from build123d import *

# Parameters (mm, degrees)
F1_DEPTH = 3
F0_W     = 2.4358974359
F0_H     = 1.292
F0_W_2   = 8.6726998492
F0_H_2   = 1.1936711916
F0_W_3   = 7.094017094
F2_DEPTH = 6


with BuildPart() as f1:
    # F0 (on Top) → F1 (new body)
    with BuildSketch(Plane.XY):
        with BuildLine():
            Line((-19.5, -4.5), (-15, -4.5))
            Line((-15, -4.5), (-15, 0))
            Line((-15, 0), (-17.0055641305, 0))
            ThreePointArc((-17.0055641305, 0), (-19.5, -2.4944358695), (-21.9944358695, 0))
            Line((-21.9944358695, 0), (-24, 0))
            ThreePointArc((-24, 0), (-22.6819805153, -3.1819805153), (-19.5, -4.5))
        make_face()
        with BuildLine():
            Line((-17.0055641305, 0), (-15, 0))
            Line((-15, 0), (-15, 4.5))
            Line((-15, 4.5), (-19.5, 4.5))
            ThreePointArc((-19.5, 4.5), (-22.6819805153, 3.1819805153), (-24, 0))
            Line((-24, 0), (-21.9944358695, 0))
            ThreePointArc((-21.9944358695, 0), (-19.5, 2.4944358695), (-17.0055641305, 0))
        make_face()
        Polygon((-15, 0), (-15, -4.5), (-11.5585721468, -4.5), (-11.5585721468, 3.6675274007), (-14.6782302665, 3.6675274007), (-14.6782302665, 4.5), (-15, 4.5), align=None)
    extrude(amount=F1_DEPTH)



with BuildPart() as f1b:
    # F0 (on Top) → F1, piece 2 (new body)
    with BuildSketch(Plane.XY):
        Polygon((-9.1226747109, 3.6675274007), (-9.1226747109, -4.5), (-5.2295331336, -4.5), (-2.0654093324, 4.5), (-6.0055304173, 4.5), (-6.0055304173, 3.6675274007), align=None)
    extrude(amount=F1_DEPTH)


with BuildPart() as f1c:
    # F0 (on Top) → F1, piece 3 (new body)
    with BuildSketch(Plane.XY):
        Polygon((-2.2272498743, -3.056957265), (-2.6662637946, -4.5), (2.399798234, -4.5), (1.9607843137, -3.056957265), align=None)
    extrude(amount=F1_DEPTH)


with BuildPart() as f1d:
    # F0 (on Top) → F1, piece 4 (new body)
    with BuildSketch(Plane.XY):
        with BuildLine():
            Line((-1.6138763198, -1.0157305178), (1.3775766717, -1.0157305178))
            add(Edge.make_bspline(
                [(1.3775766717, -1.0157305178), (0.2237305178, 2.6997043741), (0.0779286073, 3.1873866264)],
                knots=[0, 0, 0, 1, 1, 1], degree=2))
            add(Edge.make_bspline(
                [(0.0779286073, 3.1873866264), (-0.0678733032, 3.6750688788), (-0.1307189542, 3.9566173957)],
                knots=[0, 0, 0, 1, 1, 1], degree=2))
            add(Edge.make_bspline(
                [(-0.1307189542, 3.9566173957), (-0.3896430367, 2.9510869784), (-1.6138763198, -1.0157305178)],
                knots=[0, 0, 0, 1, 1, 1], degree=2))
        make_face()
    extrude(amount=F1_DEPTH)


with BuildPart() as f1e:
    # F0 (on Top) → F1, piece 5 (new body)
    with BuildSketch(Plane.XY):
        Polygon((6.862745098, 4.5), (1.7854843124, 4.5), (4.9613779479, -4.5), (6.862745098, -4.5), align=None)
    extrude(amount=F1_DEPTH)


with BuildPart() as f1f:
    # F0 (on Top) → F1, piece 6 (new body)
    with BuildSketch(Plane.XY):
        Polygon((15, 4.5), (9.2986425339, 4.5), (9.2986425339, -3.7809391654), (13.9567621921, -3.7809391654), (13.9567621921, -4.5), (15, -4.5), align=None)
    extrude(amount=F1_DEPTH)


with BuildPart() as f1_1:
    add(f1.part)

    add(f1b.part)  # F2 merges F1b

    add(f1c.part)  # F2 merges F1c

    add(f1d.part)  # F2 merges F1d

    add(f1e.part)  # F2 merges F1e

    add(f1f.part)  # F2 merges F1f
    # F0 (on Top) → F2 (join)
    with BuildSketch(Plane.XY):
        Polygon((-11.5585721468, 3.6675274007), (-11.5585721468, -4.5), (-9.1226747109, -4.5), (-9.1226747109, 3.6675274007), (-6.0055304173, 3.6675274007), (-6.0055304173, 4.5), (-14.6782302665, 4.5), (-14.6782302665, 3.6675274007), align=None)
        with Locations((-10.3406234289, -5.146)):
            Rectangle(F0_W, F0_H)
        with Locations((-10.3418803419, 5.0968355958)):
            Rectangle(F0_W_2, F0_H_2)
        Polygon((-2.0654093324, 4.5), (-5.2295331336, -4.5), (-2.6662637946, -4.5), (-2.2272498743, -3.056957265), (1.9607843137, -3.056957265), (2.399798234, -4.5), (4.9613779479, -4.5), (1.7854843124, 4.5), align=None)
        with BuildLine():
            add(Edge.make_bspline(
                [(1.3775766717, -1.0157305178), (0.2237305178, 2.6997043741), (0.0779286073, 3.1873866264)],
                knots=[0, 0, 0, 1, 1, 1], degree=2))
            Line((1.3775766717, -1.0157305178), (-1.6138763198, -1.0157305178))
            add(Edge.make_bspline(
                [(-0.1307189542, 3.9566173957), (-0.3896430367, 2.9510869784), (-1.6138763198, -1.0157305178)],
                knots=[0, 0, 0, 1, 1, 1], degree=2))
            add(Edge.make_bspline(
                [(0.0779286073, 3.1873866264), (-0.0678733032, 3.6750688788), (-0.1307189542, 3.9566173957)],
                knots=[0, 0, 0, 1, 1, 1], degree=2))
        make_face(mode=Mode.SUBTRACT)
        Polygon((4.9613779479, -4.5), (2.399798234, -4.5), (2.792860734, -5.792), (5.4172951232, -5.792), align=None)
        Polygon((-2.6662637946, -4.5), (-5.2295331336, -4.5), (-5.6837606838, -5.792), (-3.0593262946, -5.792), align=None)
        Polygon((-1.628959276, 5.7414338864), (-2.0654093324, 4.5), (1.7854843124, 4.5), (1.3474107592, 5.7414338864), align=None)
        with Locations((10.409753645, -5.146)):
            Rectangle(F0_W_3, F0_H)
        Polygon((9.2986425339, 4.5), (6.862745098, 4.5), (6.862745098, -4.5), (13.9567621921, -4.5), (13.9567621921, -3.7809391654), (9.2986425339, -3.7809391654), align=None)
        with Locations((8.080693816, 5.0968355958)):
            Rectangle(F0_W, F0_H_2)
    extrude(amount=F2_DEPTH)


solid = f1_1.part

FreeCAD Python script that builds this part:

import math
import FreeCAD as App
import Part
import Sketcher

V = App.Vector

doc = App.newDocument("Part")
body = doc.addObject("PartDesign::Body", "Body")

# Sketch on XY plane
sketch1 = body.newObject("Sketcher::SketchObject", "Sketch")
sketch1.AttachmentSupport = (doc.getObject("XY_Plane"), [""])
sketch1.MapMode = "FlatFace"
sketch1.addGeometry([
    Part.LineSegment(V(-19.5, -4.5, 0), V(-11.6, -4.5, 0)),  # 0
    Part.LineSegment(V(-11.6, -4.5, 0), V(-11.6, 3.7, 0)),  # 1
    Part.LineSegment(V(-11.6, 3.7, 0), V(-14.7, 3.7, 0)),  # 2
    Part.LineSegment(V(-14.7, 3.7, 0), V(-14.7, 4.5, 0)),  # 3
    Part.LineSegment(V(-14.7, 4.5, 0), V(-19.5, 4.5, 0)),  # 4
    Part.ArcOfCircle(Part.Circle(V(-19.5, 0, 0), V(0, 0, 1), 4.5), math.radians(90), math.radians(180)),  # 5
    Part.ArcOfCircle(Part.Circle(V(-19.5, 0, 0), V(0, 0, 1), 4.5), math.radians(180), math.radians(270)),  # 6
    Part.Circle(V(-19.5, 0, 0), V(0, 0, 1), 2.5),  # 7
], False)
sketch1.addConstraint([
    Sketcher.Constraint("Coincident", 0, 2, 1, 1),
    Sketcher.Constraint("Coincident", 1, 2, 2, 1),
    Sketcher.Constraint("Coincident", 2, 2, 3, 1),
    Sketcher.Constraint("Coincident", 3, 2, 4, 1),
    Sketcher.Constraint("Tangent", 4, 2, 5, 1),
    Sketcher.Constraint("Tangent", 5, 2, 6, 1),
    Sketcher.Constraint("Tangent", 6, 2, 0, 1),
    Sketcher.Constraint("Horizontal", 0),
    Sketcher.Constraint("Vertical", 1),
    Sketcher.Constraint("Horizontal", 2),
    Sketcher.Constraint("Vertical", 3),
    Sketcher.Constraint("Horizontal", 4),
    Sketcher.Constraint("Coincident", 7, 3, 5, 3),
    Sketcher.Constraint("Equal", 5, 6),
    Sketcher.Constraint("PointOnObject", 5, 3, -1),
    Sketcher.Constraint("PointOnObject", 5, 2, -1),
    Sketcher.Constraint("Radius", 5, 4.5),
    Sketcher.Constraint("DistanceX", 5, 2, -1, 1, 24.0),
    Sketcher.Constraint("Diameter", 7, 4.988872),
    Sketcher.Constraint("DistanceX", 2, 2, 2, 1, 3.119658),
    Sketcher.Constraint("DistanceX", 4, 2, 4, 1, 4.82177),
    Sketcher.Constraint("DistanceY", 1, 1, 1, 2, 8.167527),
])
pad1 = body.newObject("PartDesign::Pad", "Pad")
pad1.Profile = sketch1
pad1.Length = 3
body2 = doc.addObject("PartDesign::Body", "Body001")

# Sketch on XY plane
sketch2 = body2.newObject("Sketcher::SketchObject", "Sketch001")
sketch2.AttachmentSupport = (doc.getObject("XY_Plane001"), [""])
sketch2.MapMode = "FlatFace"
sketch2.addGeometry([
    Part.LineSegment(V(-9.1, 3.7, 0), V(-9.1, -4.5, 0)),  # 0
    Part.LineSegment(V(-9.1, -4.5, 0), V(-5.2, -4.5, 0)),  # 1
    Part.LineSegment(V(-5.2, -4.5, 0), V(-2.1, 4.5, 0)),  # 2
    Part.LineSegment(V(-2.1, 4.5, 0), V(-6, 4.5, 0)),  # 3
    Part.LineSegment(V(-6, 4.5, 0), V(-6, 3.7, 0)),  # 4
    Part.LineSegment(V(-6, 3.7, 0), V(-9.1, 3.7, 0)),  # 5
], False)
sketch2.addConstraint([
    Sketcher.Constraint("Coincident", 0, 2, 1, 1),
    Sketcher.Constraint("Coincident", 1, 2, 2, 1),
    Sketcher.Constraint("Coincident", 2, 2, 3, 1),
    Sketcher.Constraint("Coincident", 3, 2, 4, 1),
    Sketcher.Constraint("Coincident", 4, 2, 5, 1),
    Sketcher.Constraint("Coincident", 5, 2, 0, 1),
    Sketcher.Constraint("Vertical", 0),
    Sketcher.Constraint("Horizontal", 1),
    Sketcher.Constraint("Horizontal", 3),
    Sketcher.Constraint("Vertical", 4),
    Sketcher.Constraint("Horizontal", 5),
    Sketcher.Constraint("DistanceY", 1, 2, 2, 2, 9.0),
    Sketcher.Constraint("DistanceY", 0, 2, -1, 1, 4.5),
    Sketcher.Constraint("DistanceX", 1, 1, 1, 2, 3.893142),
    Sketcher.Constraint("DistanceX", 3, 2, 3, 1, 3.940121),
    Sketcher.Constraint("DistanceX", 5, 2, 5, 1, 3.117144),
    Sketcher.Constraint("DistanceY", 0, 2, 0, 1, 8.167527),
    Sketcher.Constraint("DistanceX", 2, 2, -1, 1, 2.065409),
])
pad2 = body2.newObject("PartDesign::Pad", "Pad001")
pad2.Profile = sketch2
pad2.Length = 3
body3 = doc.addObject("PartDesign::Body", "Body002")

# Sketch on XY plane
sketch3 = body3.newObject("Sketcher::SketchObject", "Sketch002")
sketch3.AttachmentSupport = (doc.getObject("XY_Plane002"), [""])
sketch3.MapMode = "FlatFace"
sketch3.addGeometry([
    Part.LineSegment(V(-2.2, -3.1, 0), V(-2.7, -4.5, 0)),
    Part.LineSegment(V(-2.7, -4.5, 0), V(2.4, -4.5, 0)),
    Part.LineSegment(V(2.4, -4.5, 0), V(2, -3.1, 0)),
    Part.LineSegment(V(2, -3.1, 0), V(-2.2, -3.1, 0)),
], False)
sketch3.addConstraint([
    Sketcher.Constraint("Coincident", 0, 2, 1, 1),
    Sketcher.Constraint("Coincident", 1, 2, 2, 1),
    Sketcher.Constraint("Coincident", 2, 2, 3, 1),
    Sketcher.Constraint("Coincident", 3, 2, 0, 1),
    Sketcher.Constraint("Horizontal", 1),
    Sketcher.Constraint("Horizontal", 3),
    Sketcher.Constraint("Equal", 0, 2),
    Sketcher.Constraint("DistanceY", 0, 2, -1, 1, 4.5),
    Sketcher.Constraint("DistanceX", -1, 1, 1, 2, 2.399798),
    Sketcher.Constraint("DistanceX", 1, 1, 1, 2, 5.066062),
    Sketcher.Constraint("DistanceX", 3, 2, 3, 1, 4.188034),
    Sketcher.Constraint("Distance", 0, 1.508345),
])
pad3 = body3.newObject("PartDesign::Pad", "Pad002")
pad3.Profile = sketch3
pad3.Length = 3
body4 = doc.addObject("PartDesign::Body", "Body003")

# Sketch on XY plane
sketch4 = body4.newObject("Sketcher::SketchObject", "Sketch003")
sketch4.AttachmentSupport = (doc.getObject("XY_Plane003"), [""])
sketch4.MapMode = "FlatFace"
sketch4.addGeometry([
    Part.LineSegment(V(-1.613876, -1.015731, 0), V(1.377577, -1.015731, 0)),
    Part.BSplineCurve([V(1.377577, -1.015731, 0), V(0.223731, 2.699704, 0), V(0.077929, 3.187387, 0)], [3, 3], [0, 1], False, 2, [1, 1, 1], False),
    Part.BSplineCurve([V(0.077929, 3.187387, 0), V(-0.067873, 3.675069, 0), V(-0.130719, 3.956617, 0)], [3, 3], [0, 1], False, 2, [1, 1, 1], False),
    Part.BSplineCurve([V(-0.130719, 3.956617, 0), V(-0.389643, 2.951087, 0), V(-1.613876, -1.015731, 0)], [3, 3], [0, 1], False, 2, [1, 1, 1], False),
], False)
sketch4.addConstraint([
    Sketcher.Constraint("Block", 1),
    Sketcher.Constraint("Block", 2),
    Sketcher.Constraint("Block", 3),
    Sketcher.Constraint("Coincident", 0, 2, 1, 1),
    Sketcher.Constraint("Coincident", 3, 2, 0, 1),
])
pad4 = body4.newObject("PartDesign::Pad", "Pad003")
pad4.Profile = sketch4
pad4.Length = 3
body5 = doc.addObject("PartDesign::Body", "Body004")

# Sketch on XY plane
sketch5 = body5.newObject("Sketcher::SketchObject", "Sketch004")
sketch5.AttachmentSupport = (doc.getObject("XY_Plane004"), [""])
sketch5.MapMode = "FlatFace"
sketch5.addGeometry([
    Part.LineSegment(V(6.9, 4.5, 0), V(1.8, 4.5, 0)),
    Part.LineSegment(V(1.8, 4.5, 0), V(5, -4.5, 0)),
    Part.LineSegment(V(5, -4.5, 0), V(6.9, -4.5, 0)),
    Part.LineSegment(V(6.9, -4.5, 0), V(6.9, 4.5, 0)),
], False)
sketch5.addConstraint([
    Sketcher.Constraint("Coincident", 0, 2, 1, 1),
    Sketcher.Constraint("Coincident", 1, 2, 2, 1),
    Sketcher.Constraint("Coincident", 2, 2, 3, 1),
    Sketcher.Constraint("Coincident", 3, 2, 0, 1),
    Sketcher.Constraint("Horizontal", 0),
    Sketcher.Constraint("Horizontal", 2),
    Sketcher.Constraint("Vertical", 3),
    Sketcher.Constraint("DistanceY", 3, 1, 3, 2, 9.0),
    Sketcher.Constraint("DistanceY", -1, 1, 0, 2, 4.5),
    Sketcher.Constraint("DistanceX", 0, 2, 0, 1, 5.077261),
    Sketcher.Constraint("DistanceX", 2, 1, 2, 2, 1.901367),
    Sketcher.Constraint("DistanceX", -1, 1, 0, 2, 1.785484),
])
pad5 = body5.newObject("PartDesign::Pad", "Pad004")
pad5.Profile = sketch5
pad5.Length = 3
body6 = doc.addObject("PartDesign::Body", "Body005")

# Sketch on XY plane
sketch6 = body6.newObject("Sketcher::SketchObject", "Sketch005")
sketch6.AttachmentSupport = (doc.getObject("XY_Plane005"), [""])
sketch6.MapMode = "FlatFace"
sketch6.addGeometry([
    Part.LineSegment(V(15, 4.5, 0), V(9.3, 4.5, 0)),  # 0
    Part.LineSegment(V(9.3, 4.5, 0), V(9.3, -3.8, 0)),  # 1
    Part.LineSegment(V(9.3, -3.8, 0), V(14, -3.8, 0)),  # 2
    Part.LineSegment(V(14, -3.8, 0), V(14, -4.5, 0)),  # 3
    Part.LineSegment(V(14, -4.5, 0), V(15, -4.5, 0)),  # 4
    Part.LineSegment(V(15, -4.5, 0), V(15, 4.5, 0)),  # 5
], False)
sketch6.addConstraint([
    Sketcher.Constraint("Coincident", 0, 2, 1, 1),
    Sketcher.Constraint("Coincident", 1, 2, 2, 1),
    Sketcher.Constraint("Coincident", 2, 2, 3, 1),
    Sketcher.Constraint("Coincident", 3, 2, 4, 1),
    Sketcher.Constraint("Coincident", 4, 2, 5, 1),
    Sketcher.Constraint("Coincident", 5, 2, 0, 1),
    Sketcher.Constraint("Horizontal", 0),
    Sketcher.Constraint("Vertical", 1),
    Sketcher.Constraint("Horizontal", 2),
    Sketcher.Constraint("Vertical", 3),
    Sketcher.Constraint("Horizontal", 4),
    Sketcher.Constraint("Vertical", 5),
    Sketcher.Constraint("DistanceY", 5, 1, 5, 2, 9.0),
    Sketcher.Constraint("DistanceX", -1, 1, 4, 2, 15.0),
    Sketcher.Constraint("DistanceY", -1, 1, 0, 2, 4.5),
    Sketcher.Constraint("DistanceX", 2, 1, 2, 2, 4.65812),
    Sketcher.Constraint("DistanceY", 1, 2, 1, 1, 8.280939),
    Sketcher.Constraint("DistanceX", 0, 2, 0, 1, 5.701357),
])
pad6 = body6.newObject("PartDesign::Pad", "Pad005")
pad6.Profile = sketch6
pad6.Length = 3
body.AllowCompound = True
doc.recompute()

boolean = body.newObject("PartDesign::Boolean", "Boolean")
boolean.Type = "Fuse"
boolean.addObjects([body2])
doc.recompute()

boolean2 = body.newObject("PartDesign::Boolean", "Boolean001")
boolean2.Type = "Fuse"
boolean2.addObjects([body3])
doc.recompute()

boolean3 = body.newObject("PartDesign::Boolean", "Boolean002")
boolean3.Type = "Fuse"
boolean3.addObjects([body4])
doc.recompute()

boolean4 = body.newObject("PartDesign::Boolean", "Boolean003")
boolean4.Type = "Fuse"
boolean4.addObjects([body5])
doc.recompute()

boolean5 = body.newObject("PartDesign::Boolean", "Boolean004")
boolean5.Type = "Fuse"
boolean5.addObjects([body6])

# Sketch on XY plane
sketch7 = body.newObject("Sketcher::SketchObject", "Sketch006")
sketch7.AttachmentSupport = (doc.getObject("XY_Plane"), [""])
sketch7.MapMode = "FlatFace"
sketch7.addGeometry([
    Part.LineSegment(V(-11.558572, 3.667527, 0), V(-11.558572, -5.792, 0)),  # 0
    Part.LineSegment(V(-11.558572, -5.792, 0), V(-9.122675, -5.792, 0)),  # 1
    Part.LineSegment(V(-9.122675, -5.792, 0), V(-9.122675, -4.5, 0)),  # 2
    Part.LineSegment(V(-9.122675, -4.5, 0), V(-9.122675, 3.667527, 0)),  # 3
    Part.LineSegment(V(-9.122675, 3.667527, 0), V(-6.00553, 3.667527, 0)),  # 4
    Part.LineSegment(V(-6.00553, 3.667527, 0), V(-6.00553, 5.693671, 0)),  # 5
    Part.LineSegment(V(-6.00553, 5.693671, 0), V(-14.67823, 5.693671, 0)),  # 6
    Part.LineSegment(V(-14.67823, 5.693671, 0), V(-14.67823, 3.667527, 0)),  # 7
    Part.LineSegment(V(-14.67823, 3.667527, 0), V(-11.558572, 3.667527, 0)),  # 8
    Part.LineSegment(V(-2.065409, 4.5, 0), V(-5.229533, -4.5, 0)),  # 9
    Part.LineSegment(V(-5.229533, -4.5, 0), V(-5.683761, -5.792, 0)),  # 10
    Part.LineSegment(V(-5.683761, -5.792, 0), V(-3.059326, -5.792, 0)),  # 11
    Part.LineSegment(V(-3.059326, -5.792, 0), V(-2.22725, -3.056957, 0)),  # 12
    Part.LineSegment(V(-2.22725, -3.056957, 0), V(1.960784, -3.056957, 0)),  # 13
    Part.LineSegment(V(1.960784, -3.056957, 0), V(2.792861, -5.792, 0)),  # 14
    Part.LineSegment(V(2.792861, -5.792, 0), V(5.417295, -5.792, 0)),  # 15
    Part.LineSegment(V(5.417295, -5.792, 0), V(4.961378, -4.5, 0)),  # 16
    Part.LineSegment(V(4.961378, -4.5, 0), V(1.785484, 4.5, 0)),  # 17
    Part.LineSegment(V(1.785484, 4.5, 0), V(1.347411, 5.741434, 0)),  # 18
    Part.LineSegment(V(1.347411, 5.741434, 0), V(-1.628959, 5.741434, 0)),  # 19
    Part.LineSegment(V(-1.628959, 5.741434, 0), V(-2.065409, 4.5, 0)),  # 20
    Part.BSplineCurve([V(1.377577, -1.015731, 0), V(0.223731, 2.699704, 0), V(0.077929, 3.187387, 0)], [3, 3], [0, 1], False, 2, [1, 1, 1], False),  # 21
    Part.LineSegment(V(1.377577, -1.015731, 0), V(-1.613876, -1.015731, 0)),  # 22
    Part.BSplineCurve([V(-0.130719, 3.956617, 0), V(-0.389643, 2.951087, 0), V(-1.613876, -1.015731, 0)], [3, 3], [0, 1], False, 2, [1, 1, 1], False),  # 23
    Part.BSplineCurve([V(0.077929, 3.187387, 0), V(-0.067873, 3.675069, 0), V(-0.130719, 3.956617, 0)], [3, 3], [0, 1], False, 2, [1, 1, 1], False),  # 24
    Part.LineSegment(V(6.862745, -5.792, 0), V(13.956762, -5.792, 0)),  # 25
    Part.LineSegment(V(13.956762, -5.792, 0), V(13.956762, -4.5, 0)),  # 26
    Part.LineSegment(V(13.956762, -4.5, 0), V(13.956762, -3.780939, 0)),  # 27
    Part.LineSegment(V(13.956762, -3.780939, 0), V(9.298643, -3.780939, 0)),  # 28
    Part.LineSegment(V(9.298643, -3.780939, 0), V(9.298643, 4.5, 0)),  # 29
    Part.LineSegment(V(9.298643, 4.5, 0), V(9.298643, 5.693671, 0)),  # 30
    Part.LineSegment(V(9.298643, 5.693671, 0), V(6.862745, 5.693671, 0)),  # 31
    Part.LineSegment(V(6.862745, 5.693671, 0), V(6.862745, 4.5, 0)),  # 32
    Part.LineSegment(V(6.862745, 4.5, 0), V(6.862745, -5.792, 0)),  # 33
], False)
sketch7.addConstraint([
    Sketcher.Constraint("Block", 21),
    Sketcher.Constraint("Block", 23),
    Sketcher.Constraint("Block", 24),
    Sketcher.Constraint("Coincident", 0, 2, 1, 1),
    Sketcher.Constraint("Coincident", 1, 2, 2, 1),
    Sketcher.Constraint("Coincident", 2, 2, 3, 1),
    Sketcher.Constraint("Coincident", 3, 2, 4, 1),
    Sketcher.Constraint("Coincident", 4, 2, 5, 1),
    Sketcher.Constraint("Coincident", 5, 2, 6, 1),
    Sketcher.Constraint("Coincident", 6, 2, 7, 1),
    Sketcher.Constraint("Coincident", 7, 2, 8, 1),
    Sketcher.Constraint("Coincident", 8, 2, 0, 1),
    Sketcher.Constraint("Coincident", 9, 2, 10, 1),
    Sketcher.Constraint("Coincident", 10, 2, 11, 1),
    Sketcher.Constraint("Coincident", 11, 2, 12, 1),
    Sketcher.Constraint("Coincident", 12, 2, 13, 1),
    Sketcher.Constraint("Coincident", 13, 2, 14, 1),
    Sketcher.Constraint("Coincident", 14, 2, 15, 1),
    Sketcher.Constraint("Coincident", 15, 2, 16, 1),
    Sketcher.Constraint("Coincident", 16, 2, 17, 1),
    Sketcher.Constraint("Coincident", 17, 2, 18, 1),
    Sketcher.Constraint("Coincident", 18, 2, 19, 1),
    Sketcher.Constraint("Coincident", 19, 2, 20, 1),
    Sketcher.Constraint("Coincident", 20, 2, 9, 1),
    Sketcher.Constraint("Coincident", 21, 1, 22, 1),
    Sketcher.Constraint("Coincident", 22, 2, 23, 2),
    Sketcher.Constraint("Coincident", 25, 2, 26, 1),
    Sketcher.Constraint("Coincident", 26, 2, 27, 1),
    Sketcher.Constraint("Coincident", 27, 2, 28, 1),
    Sketcher.Constraint("Coincident", 28, 2, 29, 1),
    Sketcher.Constraint("Coincident", 29, 2, 30, 1),
    Sketcher.Constraint("Coincident", 30, 2, 31, 1),
    Sketcher.Constraint("Coincident", 31, 2, 32, 1),
    Sketcher.Constraint("Coincident", 32, 2, 33, 1),
    Sketcher.Constraint("Coincident", 33, 2, 25, 1),
    Sketcher.Constraint("Vertical", 0),
    Sketcher.Constraint("Horizontal", 1),
    Sketcher.Constraint("Vertical", 2),
    Sketcher.Constraint("Vertical", 3),
    Sketcher.Constraint("Horizontal", 4),
    Sketcher.Constraint("Vertical", 5),
    Sketcher.Constraint("Horizontal", 6),
    Sketcher.Constraint("Vertical", 7),
    Sketcher.Constraint("Horizontal", 8),
    Sketcher.Constraint("Horizontal", 11),
    Sketcher.Constraint("Horizontal", 13),
    Sketcher.Constraint("Horizontal", 15),
    Sketcher.Constraint("Horizontal", 19),
    Sketcher.Constraint("Horizontal", 25),
    Sketcher.Constraint("Vertical", 26),
    Sketcher.Constraint("Vertical", 27),
    Sketcher.Constraint("Horizontal", 28),
    Sketcher.Constraint("Vertical", 29),
    Sketcher.Constraint("Vertical", 30),
    Sketcher.Constraint("Horizontal", 31),
    Sketcher.Constraint("Vertical", 32),
    Sketcher.Constraint("Vertical", 33),
    Sketcher.Constraint("Parallel", 9, 10),
    Sketcher.Constraint("Parallel", 16, 17),
    Sketcher.Constraint("Parallel", 17, 18),
    Sketcher.Constraint("Parallel", 10, 20),
    Sketcher.Constraint("Horizontal", 4, 2, 7, 2),
    Sketcher.Constraint("Horizontal", 2, 2, 9, 2),
    Sketcher.Constraint("Horizontal", 1, 2, 10, 2),
    Sketcher.Constraint("Horizontal", 11, 2, 14, 2),
    Sketcher.Constraint("Horizontal", 9, 2, 16, 2),
    Sketcher.Constraint("Horizontal", 17, 2, 20, 2),
    Sketcher.Constraint("Horizontal", 15, 2, 25, 2),
    Sketcher.Constraint("Horizontal", 16, 2, 26, 2),
    Sketcher.Constraint("Horizontal", 20, 2, 29, 2),
    Sketcher.Constraint("Horizontal", 6, 2, 30, 2),
    Sketcher.Constraint("Horizontal", 29, 2, 32, 2),
    Sketcher.Constraint("Equal", 11, 15),
    Sketcher.Constraint("Equal", 1, 31),
    Sketcher.Constraint("Equal", 12, 14),
    Sketcher.Constraint("DistanceY", 16, 2, 17, 2, 9.0),
    Sketcher.Constraint("DistanceY", 2, 2, -1, 1, 4.5),
    Sketcher.Constraint("DistanceY", 2, 1, 2, 2, 1.292),
    Sketcher.Constraint("DistanceX", 6, 2, 6, 1, 8.6727),
    Sketcher.Constraint("DistanceX", 8, 1, 8, 2, 3.119658),
    Sketcher.Constraint("DistanceX", 19, 2, 19, 1, 2.97637),
    Sketcher.Constraint("DistanceX", 28, 2, 28, 1, 4.65812),
    Sketcher.Constraint("DistanceY", 27, 1, 27, 2, 0.719061),
    Sketcher.Constraint("DistanceY", 30, 1, 30, 2, 1.193671),
    Sketcher.Constraint("DistanceX", 17, 2, 13, 2, 0.1753),
    Sketcher.Constraint("DistanceX", 14, 2, 25, 2, 11.163901),
    Sketcher.Constraint("Distance", 10, 1.369521),
    Sketcher.Constraint("Distance", 16, 1.370082),
    Sketcher.Constraint("Distance", 18, 1.31646),
    Sketcher.Constraint("DistanceX", 1, 1, 1, 2, 2.435897),
    Sketcher.Constraint("DistanceX", 11, 1, 11, 2, 2.624434),
    Sketcher.Constraint("DistanceY", 0, 2, 0, 1, 9.459527),
    Sketcher.Constraint("DistanceX", 4, 2, -1, 1, 6.00553),
    Sketcher.Constraint("DistanceX", 10, 2, -1, 1, 5.683761),
    Sketcher.Constraint("DistanceY", 13, 2, 18, 2, 8.798391),
])
pad7 = body.newObject("PartDesign::Pad", "Pad006")
pad7.Profile = sketch7
pad7.Length = 6

doc.recompute()
